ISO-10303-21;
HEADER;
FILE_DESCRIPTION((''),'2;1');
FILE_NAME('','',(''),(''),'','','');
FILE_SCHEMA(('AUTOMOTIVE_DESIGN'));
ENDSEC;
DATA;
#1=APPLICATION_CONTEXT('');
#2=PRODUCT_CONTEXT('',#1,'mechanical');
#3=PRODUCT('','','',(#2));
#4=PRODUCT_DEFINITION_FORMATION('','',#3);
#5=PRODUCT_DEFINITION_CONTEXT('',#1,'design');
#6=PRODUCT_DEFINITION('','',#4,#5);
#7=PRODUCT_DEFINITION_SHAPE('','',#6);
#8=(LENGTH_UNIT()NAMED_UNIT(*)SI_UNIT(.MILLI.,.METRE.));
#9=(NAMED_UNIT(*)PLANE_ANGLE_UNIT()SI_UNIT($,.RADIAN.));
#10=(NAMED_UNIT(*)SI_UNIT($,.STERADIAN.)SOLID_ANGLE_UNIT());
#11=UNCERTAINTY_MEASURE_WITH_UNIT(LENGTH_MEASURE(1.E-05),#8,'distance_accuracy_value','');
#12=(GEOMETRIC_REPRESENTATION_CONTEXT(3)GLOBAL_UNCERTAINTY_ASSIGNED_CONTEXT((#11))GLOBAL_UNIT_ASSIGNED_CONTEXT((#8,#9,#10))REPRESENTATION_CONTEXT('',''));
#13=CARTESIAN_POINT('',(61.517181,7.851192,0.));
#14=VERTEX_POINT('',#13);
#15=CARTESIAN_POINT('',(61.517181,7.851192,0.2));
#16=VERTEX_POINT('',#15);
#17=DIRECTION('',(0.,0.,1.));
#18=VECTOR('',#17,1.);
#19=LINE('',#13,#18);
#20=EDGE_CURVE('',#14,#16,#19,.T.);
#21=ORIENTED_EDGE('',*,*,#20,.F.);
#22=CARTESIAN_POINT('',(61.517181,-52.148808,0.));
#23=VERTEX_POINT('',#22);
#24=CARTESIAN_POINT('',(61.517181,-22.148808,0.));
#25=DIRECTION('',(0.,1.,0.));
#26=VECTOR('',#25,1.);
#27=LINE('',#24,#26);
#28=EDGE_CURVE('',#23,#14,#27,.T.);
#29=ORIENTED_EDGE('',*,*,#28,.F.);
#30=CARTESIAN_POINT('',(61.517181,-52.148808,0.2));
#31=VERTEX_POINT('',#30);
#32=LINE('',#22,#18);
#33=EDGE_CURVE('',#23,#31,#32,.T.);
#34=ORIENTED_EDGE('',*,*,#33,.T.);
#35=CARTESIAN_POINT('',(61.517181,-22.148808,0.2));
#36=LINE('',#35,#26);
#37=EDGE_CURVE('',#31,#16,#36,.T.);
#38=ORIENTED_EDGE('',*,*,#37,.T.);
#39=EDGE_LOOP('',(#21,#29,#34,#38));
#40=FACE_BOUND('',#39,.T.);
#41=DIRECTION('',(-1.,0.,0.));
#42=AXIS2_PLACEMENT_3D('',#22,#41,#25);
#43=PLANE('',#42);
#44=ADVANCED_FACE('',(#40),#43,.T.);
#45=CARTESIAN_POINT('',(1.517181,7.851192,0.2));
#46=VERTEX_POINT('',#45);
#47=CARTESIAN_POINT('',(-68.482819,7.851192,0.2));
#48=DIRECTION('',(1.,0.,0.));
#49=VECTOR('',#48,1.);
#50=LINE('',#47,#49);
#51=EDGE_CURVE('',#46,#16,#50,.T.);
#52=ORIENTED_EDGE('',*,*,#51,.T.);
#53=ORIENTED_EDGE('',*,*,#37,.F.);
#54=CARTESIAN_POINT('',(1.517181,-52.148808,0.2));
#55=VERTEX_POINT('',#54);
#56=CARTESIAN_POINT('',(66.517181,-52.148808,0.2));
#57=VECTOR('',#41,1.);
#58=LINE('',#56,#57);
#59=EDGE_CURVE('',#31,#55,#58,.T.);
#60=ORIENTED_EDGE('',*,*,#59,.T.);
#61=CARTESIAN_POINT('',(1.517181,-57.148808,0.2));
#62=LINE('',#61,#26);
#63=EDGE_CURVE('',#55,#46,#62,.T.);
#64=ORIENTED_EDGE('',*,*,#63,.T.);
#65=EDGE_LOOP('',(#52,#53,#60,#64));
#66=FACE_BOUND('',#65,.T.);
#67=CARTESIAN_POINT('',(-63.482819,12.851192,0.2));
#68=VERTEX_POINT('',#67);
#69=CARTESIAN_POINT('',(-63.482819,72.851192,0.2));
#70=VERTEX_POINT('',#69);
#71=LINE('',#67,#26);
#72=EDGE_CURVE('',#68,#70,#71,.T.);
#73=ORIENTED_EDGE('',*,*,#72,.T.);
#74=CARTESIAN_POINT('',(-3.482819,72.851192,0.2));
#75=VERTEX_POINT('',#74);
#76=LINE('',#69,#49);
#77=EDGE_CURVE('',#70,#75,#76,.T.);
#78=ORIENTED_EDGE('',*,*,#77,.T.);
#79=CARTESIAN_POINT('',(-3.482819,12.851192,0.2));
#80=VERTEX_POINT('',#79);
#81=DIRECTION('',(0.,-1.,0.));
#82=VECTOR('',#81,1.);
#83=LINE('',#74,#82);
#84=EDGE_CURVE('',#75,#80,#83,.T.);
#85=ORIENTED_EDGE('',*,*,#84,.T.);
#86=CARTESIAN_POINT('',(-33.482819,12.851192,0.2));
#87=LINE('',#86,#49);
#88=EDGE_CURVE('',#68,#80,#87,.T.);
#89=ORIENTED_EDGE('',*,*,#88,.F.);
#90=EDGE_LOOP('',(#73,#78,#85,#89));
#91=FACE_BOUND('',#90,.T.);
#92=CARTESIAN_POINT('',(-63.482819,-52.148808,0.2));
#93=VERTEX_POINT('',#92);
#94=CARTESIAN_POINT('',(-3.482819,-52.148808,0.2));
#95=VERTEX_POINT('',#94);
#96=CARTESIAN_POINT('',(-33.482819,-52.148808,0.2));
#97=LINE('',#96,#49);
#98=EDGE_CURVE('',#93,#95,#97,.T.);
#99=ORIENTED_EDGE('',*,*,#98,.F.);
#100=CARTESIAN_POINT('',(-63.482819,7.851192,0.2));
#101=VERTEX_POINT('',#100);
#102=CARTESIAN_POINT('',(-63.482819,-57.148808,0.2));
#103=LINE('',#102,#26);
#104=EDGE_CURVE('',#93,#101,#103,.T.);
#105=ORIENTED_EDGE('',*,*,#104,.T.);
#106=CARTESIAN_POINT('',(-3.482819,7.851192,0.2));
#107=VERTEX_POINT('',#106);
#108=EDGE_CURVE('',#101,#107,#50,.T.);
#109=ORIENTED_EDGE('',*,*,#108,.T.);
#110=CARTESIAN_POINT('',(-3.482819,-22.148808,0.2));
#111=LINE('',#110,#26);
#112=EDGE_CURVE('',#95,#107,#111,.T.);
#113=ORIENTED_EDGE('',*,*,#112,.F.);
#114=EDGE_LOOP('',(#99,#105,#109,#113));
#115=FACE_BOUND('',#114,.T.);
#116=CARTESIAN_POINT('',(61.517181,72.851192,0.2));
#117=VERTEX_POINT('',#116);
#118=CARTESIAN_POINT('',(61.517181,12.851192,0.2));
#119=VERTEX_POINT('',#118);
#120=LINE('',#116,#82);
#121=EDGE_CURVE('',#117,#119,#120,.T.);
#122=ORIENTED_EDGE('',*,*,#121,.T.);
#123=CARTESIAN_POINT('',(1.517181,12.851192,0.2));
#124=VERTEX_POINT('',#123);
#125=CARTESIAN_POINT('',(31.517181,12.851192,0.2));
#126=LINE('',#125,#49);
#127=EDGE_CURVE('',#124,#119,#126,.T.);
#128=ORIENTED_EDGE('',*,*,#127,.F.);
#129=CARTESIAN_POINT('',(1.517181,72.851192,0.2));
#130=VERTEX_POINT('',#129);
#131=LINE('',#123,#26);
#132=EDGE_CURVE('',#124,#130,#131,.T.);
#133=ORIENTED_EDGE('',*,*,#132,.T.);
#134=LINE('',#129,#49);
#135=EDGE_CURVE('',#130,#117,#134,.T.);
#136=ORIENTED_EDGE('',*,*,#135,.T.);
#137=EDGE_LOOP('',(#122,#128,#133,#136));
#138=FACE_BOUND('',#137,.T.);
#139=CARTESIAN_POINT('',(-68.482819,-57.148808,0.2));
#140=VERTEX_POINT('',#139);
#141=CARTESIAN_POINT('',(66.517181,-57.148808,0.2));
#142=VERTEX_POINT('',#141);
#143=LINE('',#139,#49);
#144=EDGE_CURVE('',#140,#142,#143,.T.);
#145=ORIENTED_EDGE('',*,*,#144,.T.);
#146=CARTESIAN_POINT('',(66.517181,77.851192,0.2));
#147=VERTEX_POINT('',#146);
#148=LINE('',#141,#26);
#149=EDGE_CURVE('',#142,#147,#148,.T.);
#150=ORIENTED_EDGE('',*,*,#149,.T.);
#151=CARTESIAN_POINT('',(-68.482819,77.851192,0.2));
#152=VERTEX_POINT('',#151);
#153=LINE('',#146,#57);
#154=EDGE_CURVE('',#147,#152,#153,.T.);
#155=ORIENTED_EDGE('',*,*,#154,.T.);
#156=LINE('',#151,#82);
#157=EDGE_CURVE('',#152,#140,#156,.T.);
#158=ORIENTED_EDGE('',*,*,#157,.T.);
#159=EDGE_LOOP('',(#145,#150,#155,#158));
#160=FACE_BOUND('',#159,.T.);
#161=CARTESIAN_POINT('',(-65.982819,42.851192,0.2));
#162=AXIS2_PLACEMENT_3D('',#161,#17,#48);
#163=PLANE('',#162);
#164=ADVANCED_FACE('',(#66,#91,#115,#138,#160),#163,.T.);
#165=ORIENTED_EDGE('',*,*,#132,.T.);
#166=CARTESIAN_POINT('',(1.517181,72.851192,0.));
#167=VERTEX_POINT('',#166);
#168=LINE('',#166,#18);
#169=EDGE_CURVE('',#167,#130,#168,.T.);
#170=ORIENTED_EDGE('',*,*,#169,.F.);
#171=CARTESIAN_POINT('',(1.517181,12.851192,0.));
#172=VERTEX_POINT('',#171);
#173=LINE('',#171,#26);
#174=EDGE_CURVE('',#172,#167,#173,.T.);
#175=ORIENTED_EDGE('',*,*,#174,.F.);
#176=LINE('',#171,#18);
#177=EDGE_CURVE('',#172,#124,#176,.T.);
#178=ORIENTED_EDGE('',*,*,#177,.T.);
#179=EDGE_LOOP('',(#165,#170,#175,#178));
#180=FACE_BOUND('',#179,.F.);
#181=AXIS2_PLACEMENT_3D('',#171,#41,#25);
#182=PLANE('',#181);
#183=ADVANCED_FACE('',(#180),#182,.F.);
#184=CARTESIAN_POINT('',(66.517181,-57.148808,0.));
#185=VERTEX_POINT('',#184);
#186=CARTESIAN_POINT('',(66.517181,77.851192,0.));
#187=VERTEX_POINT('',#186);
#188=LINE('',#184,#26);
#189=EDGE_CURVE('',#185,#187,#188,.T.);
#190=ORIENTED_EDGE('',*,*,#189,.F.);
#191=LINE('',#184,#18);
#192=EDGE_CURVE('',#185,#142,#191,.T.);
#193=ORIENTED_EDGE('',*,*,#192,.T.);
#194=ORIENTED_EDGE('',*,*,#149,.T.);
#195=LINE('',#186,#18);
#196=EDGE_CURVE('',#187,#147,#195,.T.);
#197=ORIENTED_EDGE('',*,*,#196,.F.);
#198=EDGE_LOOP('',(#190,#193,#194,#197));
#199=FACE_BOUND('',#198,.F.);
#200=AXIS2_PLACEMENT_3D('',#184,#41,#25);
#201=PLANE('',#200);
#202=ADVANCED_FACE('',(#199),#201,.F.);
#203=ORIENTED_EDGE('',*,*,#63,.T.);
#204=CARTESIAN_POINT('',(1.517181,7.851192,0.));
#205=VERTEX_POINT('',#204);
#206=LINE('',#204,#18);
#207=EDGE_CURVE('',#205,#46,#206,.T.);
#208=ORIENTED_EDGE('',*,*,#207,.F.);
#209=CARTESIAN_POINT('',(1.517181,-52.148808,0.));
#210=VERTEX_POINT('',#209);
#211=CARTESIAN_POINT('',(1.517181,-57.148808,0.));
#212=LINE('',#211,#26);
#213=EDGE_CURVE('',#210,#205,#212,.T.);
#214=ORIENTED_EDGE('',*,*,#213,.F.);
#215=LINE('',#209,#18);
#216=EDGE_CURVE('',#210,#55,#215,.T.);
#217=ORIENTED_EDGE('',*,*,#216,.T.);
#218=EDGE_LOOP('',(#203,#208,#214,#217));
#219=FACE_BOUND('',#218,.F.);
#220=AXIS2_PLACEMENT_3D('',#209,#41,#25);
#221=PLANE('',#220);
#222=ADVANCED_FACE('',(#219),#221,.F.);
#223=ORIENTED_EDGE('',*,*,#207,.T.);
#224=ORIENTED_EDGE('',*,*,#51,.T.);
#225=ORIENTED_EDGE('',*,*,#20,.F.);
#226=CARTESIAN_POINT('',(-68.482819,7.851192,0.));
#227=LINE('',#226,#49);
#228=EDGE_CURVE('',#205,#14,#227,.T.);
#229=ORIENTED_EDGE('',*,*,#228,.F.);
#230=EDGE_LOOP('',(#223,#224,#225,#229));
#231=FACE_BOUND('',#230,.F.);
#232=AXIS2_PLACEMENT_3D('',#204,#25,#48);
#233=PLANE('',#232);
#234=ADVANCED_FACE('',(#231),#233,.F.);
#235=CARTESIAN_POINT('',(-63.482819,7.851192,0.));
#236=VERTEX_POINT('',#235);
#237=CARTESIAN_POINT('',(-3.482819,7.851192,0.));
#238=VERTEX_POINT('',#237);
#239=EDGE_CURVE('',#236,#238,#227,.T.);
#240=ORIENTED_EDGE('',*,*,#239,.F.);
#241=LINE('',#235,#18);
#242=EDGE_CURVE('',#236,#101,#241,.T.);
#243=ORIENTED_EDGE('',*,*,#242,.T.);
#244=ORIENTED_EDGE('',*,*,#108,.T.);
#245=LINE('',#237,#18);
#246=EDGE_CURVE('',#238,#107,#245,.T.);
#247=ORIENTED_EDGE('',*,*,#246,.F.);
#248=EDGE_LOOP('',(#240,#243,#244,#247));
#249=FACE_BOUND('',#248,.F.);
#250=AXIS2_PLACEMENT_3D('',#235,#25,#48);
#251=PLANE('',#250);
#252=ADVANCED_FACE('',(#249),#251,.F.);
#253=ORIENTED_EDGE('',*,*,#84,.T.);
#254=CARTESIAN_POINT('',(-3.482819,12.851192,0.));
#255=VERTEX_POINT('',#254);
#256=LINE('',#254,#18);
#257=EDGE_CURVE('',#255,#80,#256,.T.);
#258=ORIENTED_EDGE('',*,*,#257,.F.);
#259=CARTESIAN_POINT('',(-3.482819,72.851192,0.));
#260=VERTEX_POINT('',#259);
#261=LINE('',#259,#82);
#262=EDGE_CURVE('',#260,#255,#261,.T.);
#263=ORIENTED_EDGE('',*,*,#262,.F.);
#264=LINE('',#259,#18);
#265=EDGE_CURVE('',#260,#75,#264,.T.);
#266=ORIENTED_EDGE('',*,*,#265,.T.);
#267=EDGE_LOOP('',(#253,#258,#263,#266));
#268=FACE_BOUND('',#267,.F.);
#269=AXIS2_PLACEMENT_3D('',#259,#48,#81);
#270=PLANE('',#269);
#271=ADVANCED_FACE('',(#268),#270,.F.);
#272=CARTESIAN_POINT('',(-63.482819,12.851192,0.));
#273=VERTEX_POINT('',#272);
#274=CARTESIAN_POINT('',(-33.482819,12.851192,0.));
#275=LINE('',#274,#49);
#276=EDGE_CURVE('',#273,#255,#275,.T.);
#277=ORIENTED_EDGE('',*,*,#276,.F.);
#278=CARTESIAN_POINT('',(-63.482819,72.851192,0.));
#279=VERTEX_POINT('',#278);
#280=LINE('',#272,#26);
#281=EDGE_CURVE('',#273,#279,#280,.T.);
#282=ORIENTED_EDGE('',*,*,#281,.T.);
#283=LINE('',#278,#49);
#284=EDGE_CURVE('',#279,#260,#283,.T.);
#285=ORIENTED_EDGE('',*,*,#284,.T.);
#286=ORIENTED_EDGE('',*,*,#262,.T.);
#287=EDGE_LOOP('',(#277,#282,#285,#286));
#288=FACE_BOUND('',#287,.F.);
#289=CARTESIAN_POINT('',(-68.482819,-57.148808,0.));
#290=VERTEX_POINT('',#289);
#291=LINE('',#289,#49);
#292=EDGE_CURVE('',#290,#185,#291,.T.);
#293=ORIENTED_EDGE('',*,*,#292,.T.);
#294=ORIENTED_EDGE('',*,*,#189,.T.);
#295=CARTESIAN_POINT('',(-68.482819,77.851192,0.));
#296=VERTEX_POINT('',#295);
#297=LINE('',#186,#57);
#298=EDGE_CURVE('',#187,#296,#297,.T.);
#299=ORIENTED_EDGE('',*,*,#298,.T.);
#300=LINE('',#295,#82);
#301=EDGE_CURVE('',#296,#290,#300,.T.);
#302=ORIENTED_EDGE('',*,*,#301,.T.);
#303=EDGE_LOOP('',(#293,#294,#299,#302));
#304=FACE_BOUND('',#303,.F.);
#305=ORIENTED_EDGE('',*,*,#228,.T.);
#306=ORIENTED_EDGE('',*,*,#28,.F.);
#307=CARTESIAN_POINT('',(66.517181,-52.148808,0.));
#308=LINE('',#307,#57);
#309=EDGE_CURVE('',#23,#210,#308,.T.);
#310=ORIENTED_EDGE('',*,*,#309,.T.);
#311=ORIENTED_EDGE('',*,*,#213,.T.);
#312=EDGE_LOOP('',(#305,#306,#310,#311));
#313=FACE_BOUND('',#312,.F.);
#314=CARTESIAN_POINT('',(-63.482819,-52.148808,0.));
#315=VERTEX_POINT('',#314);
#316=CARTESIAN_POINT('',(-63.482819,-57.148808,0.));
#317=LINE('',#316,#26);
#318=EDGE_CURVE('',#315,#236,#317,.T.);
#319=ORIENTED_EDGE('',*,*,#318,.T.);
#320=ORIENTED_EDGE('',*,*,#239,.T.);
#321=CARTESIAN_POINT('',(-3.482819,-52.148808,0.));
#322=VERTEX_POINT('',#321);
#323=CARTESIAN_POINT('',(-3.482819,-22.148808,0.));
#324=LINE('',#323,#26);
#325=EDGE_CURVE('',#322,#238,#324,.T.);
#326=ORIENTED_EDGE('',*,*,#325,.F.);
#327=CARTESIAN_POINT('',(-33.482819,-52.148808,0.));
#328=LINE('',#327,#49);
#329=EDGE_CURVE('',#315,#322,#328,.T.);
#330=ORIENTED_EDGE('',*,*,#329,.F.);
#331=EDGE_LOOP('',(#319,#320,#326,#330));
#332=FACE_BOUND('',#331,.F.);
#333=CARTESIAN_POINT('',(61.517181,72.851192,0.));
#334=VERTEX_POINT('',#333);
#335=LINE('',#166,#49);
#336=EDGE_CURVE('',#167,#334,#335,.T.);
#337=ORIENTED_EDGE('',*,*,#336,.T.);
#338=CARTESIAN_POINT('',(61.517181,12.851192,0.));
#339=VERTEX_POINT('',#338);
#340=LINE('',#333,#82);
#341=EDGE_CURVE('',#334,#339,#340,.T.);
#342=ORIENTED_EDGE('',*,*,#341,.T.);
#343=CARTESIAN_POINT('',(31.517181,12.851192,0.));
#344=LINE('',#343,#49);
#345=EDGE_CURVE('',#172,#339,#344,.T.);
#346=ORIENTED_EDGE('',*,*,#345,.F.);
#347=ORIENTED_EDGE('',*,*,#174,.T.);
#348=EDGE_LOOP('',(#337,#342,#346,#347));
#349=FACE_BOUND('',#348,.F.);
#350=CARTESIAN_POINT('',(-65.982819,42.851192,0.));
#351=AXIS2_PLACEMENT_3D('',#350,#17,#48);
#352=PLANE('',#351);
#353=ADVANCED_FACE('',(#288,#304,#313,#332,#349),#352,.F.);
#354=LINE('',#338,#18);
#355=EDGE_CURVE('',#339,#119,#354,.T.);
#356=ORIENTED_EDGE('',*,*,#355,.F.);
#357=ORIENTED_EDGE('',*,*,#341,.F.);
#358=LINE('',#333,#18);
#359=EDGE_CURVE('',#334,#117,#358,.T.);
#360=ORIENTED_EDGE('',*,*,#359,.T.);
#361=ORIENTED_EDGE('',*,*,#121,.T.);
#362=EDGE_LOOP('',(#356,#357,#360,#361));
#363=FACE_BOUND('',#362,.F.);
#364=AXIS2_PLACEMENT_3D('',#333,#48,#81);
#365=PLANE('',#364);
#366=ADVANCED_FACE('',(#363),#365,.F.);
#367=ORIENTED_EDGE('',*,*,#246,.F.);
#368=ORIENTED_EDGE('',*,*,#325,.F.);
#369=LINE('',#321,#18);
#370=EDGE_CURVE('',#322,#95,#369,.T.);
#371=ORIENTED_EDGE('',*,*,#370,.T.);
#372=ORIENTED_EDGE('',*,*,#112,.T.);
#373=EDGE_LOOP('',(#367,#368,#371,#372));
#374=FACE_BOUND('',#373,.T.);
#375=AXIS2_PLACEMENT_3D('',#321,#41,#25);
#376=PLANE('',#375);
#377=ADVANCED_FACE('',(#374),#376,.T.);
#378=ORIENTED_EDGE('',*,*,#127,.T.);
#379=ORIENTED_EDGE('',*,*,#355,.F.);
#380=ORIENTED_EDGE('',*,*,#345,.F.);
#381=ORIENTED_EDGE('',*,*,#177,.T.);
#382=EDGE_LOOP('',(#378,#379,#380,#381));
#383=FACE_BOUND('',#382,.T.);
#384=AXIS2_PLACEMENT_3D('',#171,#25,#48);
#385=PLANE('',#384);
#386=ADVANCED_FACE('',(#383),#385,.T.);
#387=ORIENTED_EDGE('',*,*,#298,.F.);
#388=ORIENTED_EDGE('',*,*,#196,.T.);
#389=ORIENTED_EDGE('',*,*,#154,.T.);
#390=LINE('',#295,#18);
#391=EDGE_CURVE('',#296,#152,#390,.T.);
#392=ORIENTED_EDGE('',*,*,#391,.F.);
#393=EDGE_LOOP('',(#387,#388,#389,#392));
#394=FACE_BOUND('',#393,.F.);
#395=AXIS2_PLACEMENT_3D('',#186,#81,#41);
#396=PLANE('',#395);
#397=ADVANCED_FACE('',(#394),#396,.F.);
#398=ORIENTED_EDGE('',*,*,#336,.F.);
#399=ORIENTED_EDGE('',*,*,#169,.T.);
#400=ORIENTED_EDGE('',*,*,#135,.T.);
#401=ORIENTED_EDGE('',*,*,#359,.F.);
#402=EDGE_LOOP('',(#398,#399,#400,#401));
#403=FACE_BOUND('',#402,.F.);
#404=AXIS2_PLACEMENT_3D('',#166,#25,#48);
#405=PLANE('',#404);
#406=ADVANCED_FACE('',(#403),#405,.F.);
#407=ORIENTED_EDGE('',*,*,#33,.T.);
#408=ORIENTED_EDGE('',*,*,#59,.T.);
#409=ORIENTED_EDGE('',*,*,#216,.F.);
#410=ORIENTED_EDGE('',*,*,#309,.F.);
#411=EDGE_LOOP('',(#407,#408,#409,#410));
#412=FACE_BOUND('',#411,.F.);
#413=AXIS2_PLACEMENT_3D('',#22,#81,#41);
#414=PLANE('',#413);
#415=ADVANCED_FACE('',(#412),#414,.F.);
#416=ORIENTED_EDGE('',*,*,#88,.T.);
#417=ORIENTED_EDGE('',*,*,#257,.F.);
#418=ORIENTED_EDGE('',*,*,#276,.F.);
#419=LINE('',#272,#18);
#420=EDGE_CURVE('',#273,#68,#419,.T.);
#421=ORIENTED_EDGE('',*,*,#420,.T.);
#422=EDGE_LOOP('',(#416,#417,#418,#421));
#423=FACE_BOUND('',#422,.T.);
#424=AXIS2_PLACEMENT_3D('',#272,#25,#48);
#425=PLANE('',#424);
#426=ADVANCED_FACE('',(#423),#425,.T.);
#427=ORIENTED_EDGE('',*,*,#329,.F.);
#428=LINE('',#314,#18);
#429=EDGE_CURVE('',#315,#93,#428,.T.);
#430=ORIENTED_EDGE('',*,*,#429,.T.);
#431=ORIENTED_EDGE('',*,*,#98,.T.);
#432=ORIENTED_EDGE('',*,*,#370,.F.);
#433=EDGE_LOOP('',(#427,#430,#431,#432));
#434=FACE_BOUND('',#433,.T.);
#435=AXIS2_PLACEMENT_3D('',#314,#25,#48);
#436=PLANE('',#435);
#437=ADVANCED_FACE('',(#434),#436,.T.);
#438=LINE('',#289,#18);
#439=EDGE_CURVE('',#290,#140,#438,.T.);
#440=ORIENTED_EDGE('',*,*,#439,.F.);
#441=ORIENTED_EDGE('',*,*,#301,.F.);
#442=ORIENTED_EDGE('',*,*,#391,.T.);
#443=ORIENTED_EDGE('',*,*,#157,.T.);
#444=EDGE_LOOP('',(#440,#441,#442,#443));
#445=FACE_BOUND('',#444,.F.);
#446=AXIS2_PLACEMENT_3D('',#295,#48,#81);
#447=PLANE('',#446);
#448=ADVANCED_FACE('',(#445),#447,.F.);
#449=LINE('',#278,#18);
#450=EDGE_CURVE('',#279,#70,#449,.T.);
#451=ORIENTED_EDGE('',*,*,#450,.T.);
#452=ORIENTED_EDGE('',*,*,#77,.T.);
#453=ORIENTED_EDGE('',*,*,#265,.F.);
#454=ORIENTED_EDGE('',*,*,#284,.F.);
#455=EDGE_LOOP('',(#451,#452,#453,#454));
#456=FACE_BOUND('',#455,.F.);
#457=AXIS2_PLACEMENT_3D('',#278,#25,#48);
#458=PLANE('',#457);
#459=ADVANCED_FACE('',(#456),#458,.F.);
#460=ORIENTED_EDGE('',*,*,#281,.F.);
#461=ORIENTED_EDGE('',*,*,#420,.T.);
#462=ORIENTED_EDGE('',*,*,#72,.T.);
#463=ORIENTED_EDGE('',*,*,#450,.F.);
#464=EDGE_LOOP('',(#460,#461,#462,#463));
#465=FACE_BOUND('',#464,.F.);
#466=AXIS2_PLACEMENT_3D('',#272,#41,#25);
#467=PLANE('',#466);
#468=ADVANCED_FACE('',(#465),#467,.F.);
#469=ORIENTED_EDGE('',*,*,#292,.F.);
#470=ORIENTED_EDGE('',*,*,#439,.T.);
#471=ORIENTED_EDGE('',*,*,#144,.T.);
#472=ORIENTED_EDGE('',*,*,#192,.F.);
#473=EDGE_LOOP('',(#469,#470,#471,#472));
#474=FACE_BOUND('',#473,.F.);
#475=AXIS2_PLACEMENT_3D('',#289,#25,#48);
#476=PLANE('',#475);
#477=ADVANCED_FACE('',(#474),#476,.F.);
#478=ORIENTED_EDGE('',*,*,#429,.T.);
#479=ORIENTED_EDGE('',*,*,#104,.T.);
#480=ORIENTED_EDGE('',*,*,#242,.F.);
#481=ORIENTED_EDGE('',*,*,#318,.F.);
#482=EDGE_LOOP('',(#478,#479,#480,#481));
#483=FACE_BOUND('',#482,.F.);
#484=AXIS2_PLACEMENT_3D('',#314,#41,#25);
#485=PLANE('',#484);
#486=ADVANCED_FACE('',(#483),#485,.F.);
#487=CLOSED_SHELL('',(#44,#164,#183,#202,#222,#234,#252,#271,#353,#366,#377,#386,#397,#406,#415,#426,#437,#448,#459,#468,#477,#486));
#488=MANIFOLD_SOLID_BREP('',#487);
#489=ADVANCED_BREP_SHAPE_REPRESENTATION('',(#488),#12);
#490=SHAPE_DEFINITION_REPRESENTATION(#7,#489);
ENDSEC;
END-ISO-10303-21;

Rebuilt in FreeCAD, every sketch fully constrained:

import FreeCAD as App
import Part
import Sketcher

V = App.Vector
Q = App.Units.Quantity


def add_polygon(sketch, points):
    """Adds a closed chain of lines whose ends are joined by coincident constraints."""
    first, n = sketch.GeometryCount, len(points)
    for a, b in zip(points, points[1:] + points[:1]):
        sketch.addGeometry(Part.LineSegment(App.Vector(*a, 0), App.Vector(*b, 0)), False)
    for i in range(n):
        sketch.addConstraint(Sketcher.Constraint("Coincident", first + i, 2, first + (i + 1) % n, 1))

doc = App.newDocument("Part")
body = doc.addObject("PartDesign::Body", "Body")

sketch1 = doc.addObject("Sketcher::SketchObject", "Sketch")
body.addObject(sketch1)
sketch1.AttachmentSupport = (doc.XY_Plane, [""])
sketch1.MapMode = "FlatFace"
add_polygon(sketch1, [(-68, -57), (67, -57), (67, 78), (-68, 78)])
add_polygon(sketch1, [(62, -52), (2, -52), (2, 8), (62, 8)])
add_polygon(sketch1, [(-3, -52), (-63, -52), (-63, 8), (-3, 8)])
add_polygon(sketch1, [(-3, 13), (-63, 13), (-63, 73), (-3, 73)])
add_polygon(sketch1, [(62, 13), (2, 13), (2, 73), (62, 73)])
sketch1.addConstraint([
    Sketcher.Constraint("Horizontal", 0),
    Sketcher.Constraint("Vertical", 1),
    Sketcher.Constraint("Horizontal", 2),
    Sketcher.Constraint("Vertical", 3),
    Sketcher.Constraint("Horizontal", 4),
    Sketcher.Constraint("Vertical", 5),
    Sketcher.Constraint("Horizontal", 6),
    Sketcher.Constraint("Vertical", 7),
    Sketcher.Constraint("Horizontal", 8),
    Sketcher.Constraint("Vertical", 9),
    Sketcher.Constraint("Horizontal", 10),
    Sketcher.Constraint("Vertical", 11),
    Sketcher.Constraint("Horizontal", 12),
    Sketcher.Constraint("Vertical", 13),
    Sketcher.Constraint("Horizontal", 14),
    Sketcher.Constraint("Vertical", 15),
    Sketcher.Constraint("Horizontal", 16),
    Sketcher.Constraint("Vertical", 17),
    Sketcher.Constraint("Horizontal", 18),
    Sketcher.Constraint("Vertical", 19),
    Sketcher.Constraint("Horizontal", 7, 2, 8, 2),
    Sketcher.Constraint("Horizontal", 6, 2, 9, 2),
    Sketcher.Constraint("Horizontal", 15, 2, 16, 2),
    Sketcher.Constraint("Horizontal", 14, 2, 17, 2),
    Sketcher.Constraint("Vertical", 9, 2, 12, 2),
    Sketcher.Constraint("Vertical", 11, 2, 14, 2),
    Sketcher.Constraint("Vertical", 5, 2, 16, 2),
    Sketcher.Constraint("Vertical", 7, 2, 18, 2),
    Sketcher.Constraint("Equal", 6, 8),
    Sketcher.Constraint("Equal", 2, 1),
    Sketcher.Constraint("Equal", 18, 5),
    Sketcher.Constraint("Equal", 11, 13),
    Sketcher.Constraint("DistanceX", 0, 1, 0, 2, Q("135 mm")),
    Sketcher.Constraint("DistanceX", 4, 2, 4, 1, Q("60 mm")),
    Sketcher.Constraint("DistanceX", 4, 2, 0, 2, Q("65 mm")),
    Sketcher.Constraint("DistanceY", 0, 2, 4, 2, Q("5 mm")),
    Sketcher.Constraint("DistanceX", 3, 2, 8, 2, Q("5 mm")),
    Sketcher.Constraint("DistanceY", 9, 2, 12, 2, Q("5 mm")),
    Sketcher.Constraint("DistanceX", -1, 1, 0, 2, Q("66.517181 mm")),
    Sketcher.Constraint("DistanceY", 0, 2, -1, 1, Q("57.148808 mm")),
])
pad1 = doc.addObject("PartDesign::Pad", "Pad")
body.addObject(pad1)
pad1.Profile = sketch1
pad1.Length = 0.2

doc.recompute()
